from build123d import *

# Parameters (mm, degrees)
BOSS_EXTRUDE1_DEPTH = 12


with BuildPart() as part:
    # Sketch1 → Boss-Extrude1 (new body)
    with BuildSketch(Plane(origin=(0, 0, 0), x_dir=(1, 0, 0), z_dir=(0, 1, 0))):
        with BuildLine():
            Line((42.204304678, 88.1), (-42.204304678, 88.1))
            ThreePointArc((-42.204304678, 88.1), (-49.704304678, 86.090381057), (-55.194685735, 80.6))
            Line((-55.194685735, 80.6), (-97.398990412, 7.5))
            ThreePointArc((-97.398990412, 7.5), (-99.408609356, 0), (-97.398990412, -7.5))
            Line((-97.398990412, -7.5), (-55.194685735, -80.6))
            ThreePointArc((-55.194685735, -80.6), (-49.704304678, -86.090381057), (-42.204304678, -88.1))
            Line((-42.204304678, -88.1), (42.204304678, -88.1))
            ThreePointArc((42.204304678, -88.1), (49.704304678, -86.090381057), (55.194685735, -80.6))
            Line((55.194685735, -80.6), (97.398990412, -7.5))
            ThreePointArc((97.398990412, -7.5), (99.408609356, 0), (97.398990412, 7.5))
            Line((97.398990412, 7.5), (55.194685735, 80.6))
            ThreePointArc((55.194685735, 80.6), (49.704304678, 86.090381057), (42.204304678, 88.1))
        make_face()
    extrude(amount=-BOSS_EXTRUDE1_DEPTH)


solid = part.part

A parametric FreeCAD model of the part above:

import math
import FreeCAD as App
import Part
import Sketcher
Q = App.Units.Quantity

doc = App.newDocument("Part")
body = doc.addObject("PartDesign::Body", "Body")

# Sketch on XZ plane
sketch1 = body.newObject("Sketcher::SketchObject", "Sketch")
sketch1.AttachmentSupport = (doc.getObject("XZ_Plane"), [""])
sketch1.MapMode = "FlatFace"
sketch1.addGeometry([
    Part.LineSegment(App.Vector(42, -88, 0), App.Vector(-42, -88, 0)),  # 0
    Part.ArcOfCircle(Part.Circle(App.Vector(-42, -73, 0), App.Vector(0, 0, 1), 15), math.radians(-150), math.radians(-90)),  # 1
    Part.LineSegment(App.Vector(-55, -81, 0), App.Vector(-97, -8, 0)),  # 2
    Part.ArcOfCircle(Part.Circle(App.Vector(-84, 0, 0), App.Vector(0, 0, 1), 15), math.radians(150), math.radians(210)),  # 3
    Part.LineSegment(App.Vector(-97, 8, 0), App.Vector(-55, 81, 0)),  # 4
    Part.ArcOfCircle(Part.Circle(App.Vector(-42, 73, 0), App.Vector(0, 0, 1), 15), math.radians(90), math.radians(150)),  # 5
    Part.LineSegment(App.Vector(-42, 88, 0), App.Vector(42, 88, 0)),  # 6
    Part.ArcOfCircle(Part.Circle(App.Vector(42, 73, 0), App.Vector(0, 0, 1), 15), math.radians(30), math.radians(90)),  # 7
    Part.LineSegment(App.Vector(55, 81, 0), App.Vector(97, 8, 0)),  # 8
    Part.ArcOfCircle(Part.Circle(App.Vector(84, 0, 0), App.Vector(0, 0, 1), 15), math.radians(-30), math.radians(30)),  # 9
    Part.LineSegment(App.Vector(97, -8, 0), App.Vector(55, -81, 0)),  # 10
    Part.ArcOfCircle(Part.Circle(App.Vector(42, -73, 0), App.Vector(0, 0, 1), 15), math.radians(-90), math.radians(-30)),  # 11
], False)
sketch1.addConstraint([
    Sketcher.Constraint("Tangent", 0, 2, 1, 2),
    Sketcher.Constraint("Tangent", 1, 1, 2, 1),
    Sketcher.Constraint("Tangent", 2, 2, 3, 2),
    Sketcher.Constraint("Tangent", 3, 1, 4, 1),
    Sketcher.Constraint("Tangent", 4, 2, 5, 2),
    Sketcher.Constraint("Tangent", 5, 1, 6, 1),
    Sketcher.Constraint("Tangent", 6, 2, 7, 2),
    Sketcher.Constraint("Tangent", 7, 1, 8, 1),
    Sketcher.Constraint("Tangent", 8, 2, 9, 2),
    Sketcher.Constraint("Tangent", 9, 1, 10, 1),
    Sketcher.Constraint("Tangent", 10, 2, 11, 2),
    Sketcher.Constraint("Tangent", 11, 1, 0, 1),
    Sketcher.Constraint("Horizontal", 0),
    Sketcher.Constraint("Horizontal", 6),
    Sketcher.Constraint("Equal", 1, 3),
    Sketcher.Constraint("Equal", 3, 5),
    Sketcher.Constraint("Equal", 5, 7),
    Sketcher.Constraint("Equal", 7, 9),
    Sketcher.Constraint("Equal", 9, 11),
    Sketcher.Constraint("Symmetric", 1, 3, 7, 3, -1, 1),
    Sketcher.Constraint("Symmetric", 3, 3, 9, 3, -1, 1),
    Sketcher.Constraint("Symmetric", 4, 2, 7, 1, -2),
    Sketcher.Constraint("Parallel", 4, 10),
    Sketcher.Constraint("Radius", 1, Q("15 mm")),
    Sketcher.Constraint("Angle", 2, Q("120 deg")),
    Sketcher.Constraint("DistanceY", 1, 3, -1, 1, Q("73.1 mm")),
    Sketcher.Constraint("DistanceX", 0, 2, 0, 1, Q("84.408609 mm")),
])
pad1 = body.newObject("PartDesign::Pad", "Pad")
pad1.Profile = sketch1
pad1.Length = 12

doc.recompute()
